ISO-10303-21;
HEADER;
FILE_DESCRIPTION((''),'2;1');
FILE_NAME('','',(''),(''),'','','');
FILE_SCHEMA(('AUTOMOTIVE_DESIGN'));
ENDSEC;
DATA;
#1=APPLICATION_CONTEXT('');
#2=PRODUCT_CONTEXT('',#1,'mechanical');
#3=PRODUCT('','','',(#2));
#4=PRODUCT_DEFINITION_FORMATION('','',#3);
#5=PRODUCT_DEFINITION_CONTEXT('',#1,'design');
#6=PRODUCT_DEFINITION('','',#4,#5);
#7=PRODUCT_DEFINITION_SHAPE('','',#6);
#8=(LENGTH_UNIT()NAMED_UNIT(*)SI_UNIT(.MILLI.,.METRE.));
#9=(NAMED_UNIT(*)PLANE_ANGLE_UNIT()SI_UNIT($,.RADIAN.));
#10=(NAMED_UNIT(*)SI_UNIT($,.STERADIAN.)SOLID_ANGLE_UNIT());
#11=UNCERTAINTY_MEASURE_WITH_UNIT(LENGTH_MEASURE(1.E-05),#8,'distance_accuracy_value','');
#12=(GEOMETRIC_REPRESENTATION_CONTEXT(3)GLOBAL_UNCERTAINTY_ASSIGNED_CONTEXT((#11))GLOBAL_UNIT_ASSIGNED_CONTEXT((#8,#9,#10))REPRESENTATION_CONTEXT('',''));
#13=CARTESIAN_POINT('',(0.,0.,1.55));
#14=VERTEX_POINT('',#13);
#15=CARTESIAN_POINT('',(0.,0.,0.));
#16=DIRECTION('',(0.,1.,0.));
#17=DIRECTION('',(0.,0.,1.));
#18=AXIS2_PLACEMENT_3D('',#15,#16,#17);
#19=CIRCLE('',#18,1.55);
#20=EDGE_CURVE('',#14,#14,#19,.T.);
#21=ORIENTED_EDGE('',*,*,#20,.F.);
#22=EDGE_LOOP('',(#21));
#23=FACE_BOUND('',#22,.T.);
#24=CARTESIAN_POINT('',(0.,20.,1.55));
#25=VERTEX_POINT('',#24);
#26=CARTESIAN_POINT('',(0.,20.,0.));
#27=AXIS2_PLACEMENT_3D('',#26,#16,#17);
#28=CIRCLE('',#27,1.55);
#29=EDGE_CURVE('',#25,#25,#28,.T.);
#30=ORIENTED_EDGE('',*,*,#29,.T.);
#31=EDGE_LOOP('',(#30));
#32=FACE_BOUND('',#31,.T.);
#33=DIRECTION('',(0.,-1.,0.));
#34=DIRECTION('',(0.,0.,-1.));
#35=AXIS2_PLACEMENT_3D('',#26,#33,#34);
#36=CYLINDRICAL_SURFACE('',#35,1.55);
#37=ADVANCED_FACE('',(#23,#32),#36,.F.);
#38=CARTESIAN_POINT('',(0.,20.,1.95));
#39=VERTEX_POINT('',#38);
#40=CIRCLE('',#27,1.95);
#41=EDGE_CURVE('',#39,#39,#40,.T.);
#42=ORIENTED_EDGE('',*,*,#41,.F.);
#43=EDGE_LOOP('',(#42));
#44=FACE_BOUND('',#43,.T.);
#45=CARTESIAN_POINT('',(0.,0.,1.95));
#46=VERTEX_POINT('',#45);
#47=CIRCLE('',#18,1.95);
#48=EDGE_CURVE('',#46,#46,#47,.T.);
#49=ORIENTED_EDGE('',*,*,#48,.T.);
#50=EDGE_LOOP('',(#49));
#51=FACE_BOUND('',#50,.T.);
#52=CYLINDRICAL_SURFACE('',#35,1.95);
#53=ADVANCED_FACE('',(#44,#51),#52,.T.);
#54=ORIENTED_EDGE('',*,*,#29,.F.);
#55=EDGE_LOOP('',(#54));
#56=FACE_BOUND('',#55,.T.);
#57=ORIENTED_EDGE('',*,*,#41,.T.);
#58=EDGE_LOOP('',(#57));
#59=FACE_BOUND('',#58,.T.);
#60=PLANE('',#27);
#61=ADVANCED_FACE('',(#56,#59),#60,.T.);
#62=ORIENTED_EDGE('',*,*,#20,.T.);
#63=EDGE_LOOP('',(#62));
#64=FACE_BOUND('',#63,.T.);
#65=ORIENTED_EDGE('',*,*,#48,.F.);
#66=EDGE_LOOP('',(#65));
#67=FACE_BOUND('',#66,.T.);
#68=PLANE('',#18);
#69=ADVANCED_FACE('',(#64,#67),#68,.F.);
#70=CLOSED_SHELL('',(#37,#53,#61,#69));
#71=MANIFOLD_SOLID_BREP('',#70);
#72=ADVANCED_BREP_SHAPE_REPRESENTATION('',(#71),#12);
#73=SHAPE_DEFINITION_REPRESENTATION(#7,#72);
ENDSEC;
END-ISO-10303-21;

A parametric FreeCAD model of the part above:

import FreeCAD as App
import Part
import Sketcher
Q = App.Units.Quantity

doc = App.newDocument("Part")
body = doc.addObject("PartDesign::Body", "Body")

sketch1 = body.newObject("Sketcher::SketchObject", "Sketch")
sketch1.AttachmentSupport = (doc.getObject("XZ_Plane"), [""])
sketch1.MapMode = "FlatFace"
sketch1.addGeometry([
    Part.Circle(App.Vector(0, 0, 0), App.Vector(0, 0, 1), 1.9),
    Part.Circle(App.Vector(0, 0, 0), App.Vector(0, 0, 1), 1.6),
], False)
sketch1.addConstraint([
    Sketcher.Constraint("Coincident", 0, 3, -1, 1),
    Sketcher.Constraint("Coincident", 1, 3, -1, 1),
    Sketcher.Constraint("Diameter", 0, Q("3.9 mm")),
    Sketcher.Constraint("Diameter", 1, Q("3.1 mm")),
])
pad1 = body.newObject("PartDesign::Pad", "Pad")
pad1.Profile = sketch1
pad1.Length = 20
pad1.Reversed = True

doc.recompute()
